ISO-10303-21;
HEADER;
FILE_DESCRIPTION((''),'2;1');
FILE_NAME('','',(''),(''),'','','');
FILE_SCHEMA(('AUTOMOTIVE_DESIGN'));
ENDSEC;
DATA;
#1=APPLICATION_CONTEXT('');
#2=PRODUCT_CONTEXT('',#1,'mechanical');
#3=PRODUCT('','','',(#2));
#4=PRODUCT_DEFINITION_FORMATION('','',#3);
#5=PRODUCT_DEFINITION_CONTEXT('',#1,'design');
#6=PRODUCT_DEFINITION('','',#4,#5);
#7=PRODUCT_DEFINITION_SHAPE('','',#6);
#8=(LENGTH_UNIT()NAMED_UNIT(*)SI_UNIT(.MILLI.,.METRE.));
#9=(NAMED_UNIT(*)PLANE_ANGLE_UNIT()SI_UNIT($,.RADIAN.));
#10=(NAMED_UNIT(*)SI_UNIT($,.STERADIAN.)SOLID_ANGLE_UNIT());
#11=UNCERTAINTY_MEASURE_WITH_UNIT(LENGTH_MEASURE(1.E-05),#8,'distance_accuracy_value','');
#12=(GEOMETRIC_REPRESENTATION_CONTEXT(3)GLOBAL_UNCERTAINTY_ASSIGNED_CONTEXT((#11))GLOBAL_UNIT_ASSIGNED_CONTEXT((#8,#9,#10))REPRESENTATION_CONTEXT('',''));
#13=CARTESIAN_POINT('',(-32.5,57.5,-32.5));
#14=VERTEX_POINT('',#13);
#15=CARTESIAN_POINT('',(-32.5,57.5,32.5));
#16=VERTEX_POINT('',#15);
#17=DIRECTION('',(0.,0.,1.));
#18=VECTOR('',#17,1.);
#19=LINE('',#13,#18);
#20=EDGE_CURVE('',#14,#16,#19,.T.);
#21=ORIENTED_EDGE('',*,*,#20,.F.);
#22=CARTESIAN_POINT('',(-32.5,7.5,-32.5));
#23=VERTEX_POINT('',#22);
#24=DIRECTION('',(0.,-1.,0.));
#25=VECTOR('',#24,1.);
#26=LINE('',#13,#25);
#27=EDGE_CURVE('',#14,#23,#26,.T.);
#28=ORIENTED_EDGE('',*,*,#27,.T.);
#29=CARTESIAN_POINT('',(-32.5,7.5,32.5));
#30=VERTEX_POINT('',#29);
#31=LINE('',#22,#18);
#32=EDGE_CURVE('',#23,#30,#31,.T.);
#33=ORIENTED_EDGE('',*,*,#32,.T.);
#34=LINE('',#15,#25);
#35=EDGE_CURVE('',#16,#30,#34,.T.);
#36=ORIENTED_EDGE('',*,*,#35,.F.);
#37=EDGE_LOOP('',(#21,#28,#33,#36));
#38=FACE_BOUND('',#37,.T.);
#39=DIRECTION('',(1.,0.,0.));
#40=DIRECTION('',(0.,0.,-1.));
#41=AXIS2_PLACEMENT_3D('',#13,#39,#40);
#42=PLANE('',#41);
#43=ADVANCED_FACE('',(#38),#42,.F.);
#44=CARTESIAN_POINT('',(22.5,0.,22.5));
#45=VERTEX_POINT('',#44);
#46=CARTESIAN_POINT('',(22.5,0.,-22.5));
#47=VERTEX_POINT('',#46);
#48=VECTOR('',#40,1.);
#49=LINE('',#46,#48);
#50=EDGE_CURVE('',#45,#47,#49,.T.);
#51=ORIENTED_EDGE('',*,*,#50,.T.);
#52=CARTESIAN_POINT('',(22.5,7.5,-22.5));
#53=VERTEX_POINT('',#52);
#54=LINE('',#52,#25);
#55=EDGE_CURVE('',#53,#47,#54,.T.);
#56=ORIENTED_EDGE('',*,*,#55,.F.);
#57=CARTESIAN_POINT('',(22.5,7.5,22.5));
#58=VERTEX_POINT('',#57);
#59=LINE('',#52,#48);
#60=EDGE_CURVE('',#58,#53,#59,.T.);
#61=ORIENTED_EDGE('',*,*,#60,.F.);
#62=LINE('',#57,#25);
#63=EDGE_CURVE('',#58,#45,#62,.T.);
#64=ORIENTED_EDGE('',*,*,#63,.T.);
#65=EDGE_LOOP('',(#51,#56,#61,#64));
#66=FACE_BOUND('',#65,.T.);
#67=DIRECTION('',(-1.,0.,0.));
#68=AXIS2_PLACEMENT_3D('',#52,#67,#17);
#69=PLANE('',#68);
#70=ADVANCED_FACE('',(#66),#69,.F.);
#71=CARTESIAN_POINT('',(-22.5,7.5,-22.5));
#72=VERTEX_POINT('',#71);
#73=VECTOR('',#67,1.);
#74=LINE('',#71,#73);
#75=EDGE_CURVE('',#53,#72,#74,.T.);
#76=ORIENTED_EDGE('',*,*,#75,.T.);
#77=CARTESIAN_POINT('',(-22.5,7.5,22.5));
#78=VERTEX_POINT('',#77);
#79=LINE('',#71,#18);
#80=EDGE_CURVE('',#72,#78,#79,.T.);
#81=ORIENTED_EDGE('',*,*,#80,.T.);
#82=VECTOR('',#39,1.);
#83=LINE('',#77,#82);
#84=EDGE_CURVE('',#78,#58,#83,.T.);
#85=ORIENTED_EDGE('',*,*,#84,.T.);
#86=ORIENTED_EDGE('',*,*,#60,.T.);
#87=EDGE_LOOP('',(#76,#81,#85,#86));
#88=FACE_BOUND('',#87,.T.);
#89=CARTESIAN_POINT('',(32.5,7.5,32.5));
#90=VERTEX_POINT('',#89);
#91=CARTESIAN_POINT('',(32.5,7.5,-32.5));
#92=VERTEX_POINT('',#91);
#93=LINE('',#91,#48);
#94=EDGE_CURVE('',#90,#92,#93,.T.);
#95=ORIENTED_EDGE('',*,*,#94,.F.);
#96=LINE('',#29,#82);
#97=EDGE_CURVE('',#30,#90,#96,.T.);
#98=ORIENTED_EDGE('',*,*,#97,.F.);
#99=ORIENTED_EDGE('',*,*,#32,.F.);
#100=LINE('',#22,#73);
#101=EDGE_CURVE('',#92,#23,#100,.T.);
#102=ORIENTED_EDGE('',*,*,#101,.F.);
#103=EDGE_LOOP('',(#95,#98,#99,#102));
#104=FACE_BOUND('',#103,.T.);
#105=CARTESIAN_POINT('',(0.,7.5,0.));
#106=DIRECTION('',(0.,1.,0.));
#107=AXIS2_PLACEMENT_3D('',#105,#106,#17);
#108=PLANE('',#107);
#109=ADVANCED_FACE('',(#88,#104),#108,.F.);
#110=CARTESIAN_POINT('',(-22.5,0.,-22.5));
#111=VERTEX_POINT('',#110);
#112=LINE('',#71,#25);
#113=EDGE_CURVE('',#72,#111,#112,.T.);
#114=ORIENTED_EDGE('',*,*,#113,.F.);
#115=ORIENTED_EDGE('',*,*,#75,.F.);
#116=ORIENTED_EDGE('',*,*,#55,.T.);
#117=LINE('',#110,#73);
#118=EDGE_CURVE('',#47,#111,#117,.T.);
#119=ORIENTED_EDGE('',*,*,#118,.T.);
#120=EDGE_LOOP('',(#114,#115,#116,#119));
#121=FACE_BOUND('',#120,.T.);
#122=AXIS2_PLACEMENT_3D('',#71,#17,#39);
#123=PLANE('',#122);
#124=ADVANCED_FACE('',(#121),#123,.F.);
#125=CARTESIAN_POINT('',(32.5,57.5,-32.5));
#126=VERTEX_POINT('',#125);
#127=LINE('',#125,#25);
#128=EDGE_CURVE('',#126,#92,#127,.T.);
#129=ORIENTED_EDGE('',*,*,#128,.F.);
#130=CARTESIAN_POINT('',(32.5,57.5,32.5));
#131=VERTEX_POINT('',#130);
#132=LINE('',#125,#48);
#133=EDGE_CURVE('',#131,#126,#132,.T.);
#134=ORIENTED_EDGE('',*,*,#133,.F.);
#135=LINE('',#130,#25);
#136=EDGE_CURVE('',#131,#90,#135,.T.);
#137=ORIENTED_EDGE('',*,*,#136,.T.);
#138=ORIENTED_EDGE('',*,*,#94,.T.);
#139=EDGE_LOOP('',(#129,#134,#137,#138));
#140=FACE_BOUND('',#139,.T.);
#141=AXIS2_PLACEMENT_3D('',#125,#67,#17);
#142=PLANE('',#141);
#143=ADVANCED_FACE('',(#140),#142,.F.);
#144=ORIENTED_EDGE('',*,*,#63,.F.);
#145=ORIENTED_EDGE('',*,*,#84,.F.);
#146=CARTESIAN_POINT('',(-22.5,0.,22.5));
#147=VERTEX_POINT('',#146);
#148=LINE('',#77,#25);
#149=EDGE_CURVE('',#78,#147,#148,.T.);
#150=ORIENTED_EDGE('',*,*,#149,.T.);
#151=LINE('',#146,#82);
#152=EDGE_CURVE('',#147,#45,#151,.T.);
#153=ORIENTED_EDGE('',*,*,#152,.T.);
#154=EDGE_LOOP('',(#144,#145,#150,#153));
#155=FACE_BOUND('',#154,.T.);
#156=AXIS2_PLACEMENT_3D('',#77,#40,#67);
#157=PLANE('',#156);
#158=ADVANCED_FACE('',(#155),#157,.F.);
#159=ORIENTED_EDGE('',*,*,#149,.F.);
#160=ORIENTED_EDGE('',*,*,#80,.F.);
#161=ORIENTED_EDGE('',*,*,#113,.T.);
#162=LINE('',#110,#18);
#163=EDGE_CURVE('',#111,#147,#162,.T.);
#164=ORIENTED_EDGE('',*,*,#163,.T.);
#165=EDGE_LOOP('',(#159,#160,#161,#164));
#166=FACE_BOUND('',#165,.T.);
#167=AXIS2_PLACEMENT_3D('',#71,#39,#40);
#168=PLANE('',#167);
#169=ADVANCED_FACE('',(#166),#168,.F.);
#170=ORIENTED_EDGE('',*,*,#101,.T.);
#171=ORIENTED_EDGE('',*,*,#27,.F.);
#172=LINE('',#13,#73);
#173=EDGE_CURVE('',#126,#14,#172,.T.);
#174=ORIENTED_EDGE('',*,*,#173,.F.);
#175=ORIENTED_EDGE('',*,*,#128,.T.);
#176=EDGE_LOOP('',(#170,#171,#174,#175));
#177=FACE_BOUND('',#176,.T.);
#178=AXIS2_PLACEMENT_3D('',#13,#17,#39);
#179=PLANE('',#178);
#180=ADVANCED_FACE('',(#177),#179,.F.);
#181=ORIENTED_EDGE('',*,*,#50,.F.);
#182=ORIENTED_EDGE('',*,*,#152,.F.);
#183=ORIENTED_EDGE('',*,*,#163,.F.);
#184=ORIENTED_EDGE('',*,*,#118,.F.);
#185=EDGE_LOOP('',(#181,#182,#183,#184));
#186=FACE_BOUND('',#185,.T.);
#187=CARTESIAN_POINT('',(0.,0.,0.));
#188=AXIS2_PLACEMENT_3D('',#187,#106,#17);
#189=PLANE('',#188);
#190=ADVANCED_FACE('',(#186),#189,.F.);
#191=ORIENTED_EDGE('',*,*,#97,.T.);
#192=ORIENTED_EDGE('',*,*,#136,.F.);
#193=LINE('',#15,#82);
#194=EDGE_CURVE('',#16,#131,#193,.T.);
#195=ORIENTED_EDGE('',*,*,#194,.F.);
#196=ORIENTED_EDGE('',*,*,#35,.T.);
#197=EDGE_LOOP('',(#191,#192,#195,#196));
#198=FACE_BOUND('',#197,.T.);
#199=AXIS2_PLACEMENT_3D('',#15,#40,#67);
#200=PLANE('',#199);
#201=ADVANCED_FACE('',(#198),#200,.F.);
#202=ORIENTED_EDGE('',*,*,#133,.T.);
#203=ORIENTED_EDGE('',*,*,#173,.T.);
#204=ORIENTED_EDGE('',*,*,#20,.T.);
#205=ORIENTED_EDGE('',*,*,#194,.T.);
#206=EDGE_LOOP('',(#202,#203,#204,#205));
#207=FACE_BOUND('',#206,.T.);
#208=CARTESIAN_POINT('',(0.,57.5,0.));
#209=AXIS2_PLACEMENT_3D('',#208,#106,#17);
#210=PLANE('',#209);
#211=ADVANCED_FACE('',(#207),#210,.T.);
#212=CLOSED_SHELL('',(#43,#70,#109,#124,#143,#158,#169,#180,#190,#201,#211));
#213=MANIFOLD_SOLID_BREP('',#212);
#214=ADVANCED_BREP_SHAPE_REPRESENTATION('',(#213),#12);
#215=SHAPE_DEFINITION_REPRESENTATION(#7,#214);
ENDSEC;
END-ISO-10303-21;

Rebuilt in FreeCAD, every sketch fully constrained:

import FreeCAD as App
import Part
import Sketcher
from FreeCAD import Vector


def add_polygon(sketch, points):
    """Adds a closed chain of lines whose ends are joined by coincident constraints."""
    first, n = sketch.GeometryCount, len(points)
    for a, b in zip(points, points[1:] + points[:1]):
        sketch.addGeometry(Part.LineSegment(App.Vector(*a, 0), App.Vector(*b, 0)), False)
    for i in range(n):
        sketch.addConstraint(Sketcher.Constraint("Coincident", first + i, 2, first + (i + 1) % n, 1))

doc = App.newDocument("Part")
params = doc.addObject("Spreadsheet::Sheet", "Params")
for row, (alias, value) in enumerate([
    ("sketch1_width", "45 mm"),
    ("pad1_length", "7.5 mm"),
    ("sketch2_width", "65 mm"),
    ("pad2_length", "50 mm"),
], start=1):
    params.set(f"A{row}", alias)
    params.set(f"B{row}", "=" + value)
    params.setAlias(f"B{row}", alias)

body = doc.addObject("PartDesign::Body", "Body")

# Sketch on XZ plane
sketch1 = body.newObject("Sketcher::SketchObject", "Sketch")
sketch1.AttachmentSupport = (doc.getObject("XZ_Plane"), [""])
sketch1.MapMode = "FlatFace"
add_polygon(sketch1, [(-22.5, -22.5), (-22.5, 22.5), (22.5, 22.5), (22.5, -22.5)])  # lines 0-3
sketch1.addConstraint([
    Sketcher.Constraint("Vertical", 0),
    Sketcher.Constraint("Horizontal", 1),
    Sketcher.Constraint("Vertical", 2),
    Sketcher.Constraint("Horizontal", 3),
    Sketcher.Constraint("Symmetric", 0, 2, 2, 2, -1, 1),
    Sketcher.Constraint("Equal", 3, 0),
    Sketcher.Constraint("DistanceX", 1, 1, 1, 2, 45.0),
])
sketch1.setExpression("Constraints[10]", "Params.sketch1_width")
pad1 = body.newObject("PartDesign::Pad", "Pad")
pad1.Profile = sketch1
pad1.setExpression("Length", "Params.pad1_length")
pad1.Reversed = True

# Sketch on XZ plane
sketch2 = body.newObject("Sketcher::SketchObject", "Sketch001")
sketch2.AttachmentSupport = (doc.getObject("XZ_Plane"), [""])
sketch2.MapMode = "FlatFace"
sketch2.AttachmentOffset = App.Placement(Vector(0, 0, -7.5), App.Rotation())
add_polygon(sketch2, [(-32.5, -32.5), (-32.5, 32.5), (32.5, 32.5), (32.5, -32.5)])  # lines 0-3
sketch2.addConstraint([
    Sketcher.Constraint("Vertical", 0),
    Sketcher.Constraint("Horizontal", 1),
    Sketcher.Constraint("Vertical", 2),
    Sketcher.Constraint("Horizontal", 3),
    Sketcher.Constraint("Symmetric", 0, 2, 2, 2, -1, 1),
    Sketcher.Constraint("Equal", 3, 0),
    Sketcher.Constraint("DistanceX", 1, 1, 1, 2, 65.0),
])
sketch2.setExpression("Constraints[10]", "Params.sketch2_width")
pad2 = body.newObject("PartDesign::Pad", "Pad001")
pad2.Profile = sketch2
pad2.setExpression("Length", "Params.pad2_length")
pad2.Reversed = True

doc.recompute()
